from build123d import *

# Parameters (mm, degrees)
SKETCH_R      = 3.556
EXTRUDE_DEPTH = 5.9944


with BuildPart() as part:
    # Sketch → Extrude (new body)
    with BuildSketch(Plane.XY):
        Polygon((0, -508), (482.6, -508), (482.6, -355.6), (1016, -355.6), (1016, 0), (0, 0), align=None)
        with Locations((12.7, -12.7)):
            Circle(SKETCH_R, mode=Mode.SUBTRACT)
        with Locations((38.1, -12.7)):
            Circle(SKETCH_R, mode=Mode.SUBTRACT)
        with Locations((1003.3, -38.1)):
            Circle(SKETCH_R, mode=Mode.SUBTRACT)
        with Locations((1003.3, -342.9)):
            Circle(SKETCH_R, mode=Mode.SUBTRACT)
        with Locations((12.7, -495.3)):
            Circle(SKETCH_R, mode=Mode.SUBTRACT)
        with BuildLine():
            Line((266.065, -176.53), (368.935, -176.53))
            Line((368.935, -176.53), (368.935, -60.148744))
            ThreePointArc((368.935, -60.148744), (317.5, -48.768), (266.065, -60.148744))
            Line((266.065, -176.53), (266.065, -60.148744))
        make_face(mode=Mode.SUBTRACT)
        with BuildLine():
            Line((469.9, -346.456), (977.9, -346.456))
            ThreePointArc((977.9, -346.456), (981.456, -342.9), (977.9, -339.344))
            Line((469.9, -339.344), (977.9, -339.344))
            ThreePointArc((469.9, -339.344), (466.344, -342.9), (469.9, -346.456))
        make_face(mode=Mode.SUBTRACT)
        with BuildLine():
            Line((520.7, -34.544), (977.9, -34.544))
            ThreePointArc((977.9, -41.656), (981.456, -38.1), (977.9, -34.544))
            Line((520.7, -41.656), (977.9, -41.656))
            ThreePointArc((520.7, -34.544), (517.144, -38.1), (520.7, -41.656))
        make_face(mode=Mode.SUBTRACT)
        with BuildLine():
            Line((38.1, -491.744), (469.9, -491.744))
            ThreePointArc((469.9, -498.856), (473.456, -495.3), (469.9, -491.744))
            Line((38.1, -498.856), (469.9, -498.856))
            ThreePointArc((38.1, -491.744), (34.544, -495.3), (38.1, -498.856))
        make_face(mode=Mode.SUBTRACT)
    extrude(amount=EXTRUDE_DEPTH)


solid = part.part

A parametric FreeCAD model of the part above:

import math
import FreeCAD as App
import Part
import Sketcher

V = App.Vector
Q = App.Units.Quantity

doc = App.newDocument("Part")
body = doc.addObject("PartDesign::Body", "Body")

sketch1 = body.newObject("Sketcher::SketchObject", "Sketch")
sketch1.AttachmentSupport = (doc.getObject("XY_Plane"), [""])
sketch1.MapMode = "FlatFace"
sketch1.addGeometry([
    Part.LineSegment(V(0, -508, 0), V(482.6, -508, 0)),
    Part.LineSegment(V(482.6, -508, 0), V(482.6, -355.6, 0)),
    Part.LineSegment(V(482.6, -355.6, 0), V(1016, -355.6, 0)),
    Part.LineSegment(V(1016, -355.6, 0), V(1016, 0, 0)),
    Part.LineSegment(V(1016, 0, 0), V(0, 0, 0)),
    Part.LineSegment(V(0, 0, 0), V(0, -508, 0)),
    Part.Circle(V(12.7, -495.3, 0), V(0, 0, 1), 3.6),
    Part.ArcOfCircle(Part.Circle(V(38.1, -495.3, 0), V(0, 0, 1), 3.6), math.radians(90), math.radians(270)),
    Part.LineSegment(V(38.1, -491.7, 0), V(469.9, -491.7, 0)),
    Part.ArcOfCircle(Part.Circle(V(469.9, -495.3, 0), V(0, 0, 1), 3.6), math.radians(-90), math.radians(90)),
    Part.LineSegment(V(469.9, -498.9, 0), V(38.1, -498.9, 0)),
    Part.LineSegment(V(977.9, -346.5, 0), V(469.9, -346.5, 0)),
    Part.ArcOfCircle(Part.Circle(V(469.9, -342.9, 0), V(0, 0, 1), 3.6), math.radians(90), math.radians(270)),
    Part.LineSegment(V(469.9, -339.3, 0), V(977.9, -339.3, 0)),
    Part.ArcOfCircle(Part.Circle(V(977.9, -342.9, 0), V(0, 0, 1), 3.6), math.radians(-90), math.radians(90)),
    Part.Circle(V(1003.3, -342.9, 0), V(0, 0, 1), 3.6),
    Part.Circle(V(12.7, -12.7, 0), V(0, 0, 1), 3.6),
    Part.Circle(V(38.1, -12.7, 0), V(0, 0, 1), 3.6),
    Part.LineSegment(V(368.9, -176.5, 0), V(266.1, -176.5, 0)),
    Part.LineSegment(V(266.1, -176.5, 0), V(266.1, -60.1, 0)),
    Part.ArcOfCircle(Part.Circle(V(317.5, -170.7, 0), V(0, 0, 1), 121.9), math.radians(65), math.radians(115)),
    Part.LineSegment(V(368.9, -60.1, 0), V(368.9, -176.5, 0)),
    Part.ArcOfCircle(Part.Circle(V(520.7, -38.1, 0), V(0, 0, 1), 3.6), math.radians(90), math.radians(270)),
    Part.LineSegment(V(520.7, -34.5, 0), V(977.9, -34.5, 0)),
    Part.ArcOfCircle(Part.Circle(V(977.9, -38.1, 0), V(0, 0, 1), 3.6), math.radians(-90), math.radians(90)),
    Part.LineSegment(V(977.9, -41.7, 0), V(520.7, -41.7, 0)),
    Part.Circle(V(1003.3, -38.1, 0), V(0, 0, 1), 3.6),
], False)
sketch1.addConstraint([
    Sketcher.Constraint("Coincident", 0, 2, 1, 1),
    Sketcher.Constraint("Coincident", 1, 2, 2, 1),
    Sketcher.Constraint("Coincident", 2, 2, 3, 1),
    Sketcher.Constraint("Coincident", 3, 2, 4, 1),
    Sketcher.Constraint("Coincident", 4, 2, 5, 1),
    Sketcher.Constraint("Coincident", 5, 2, 0, 1),
    Sketcher.Constraint("Tangent", 7, 1, 8, 1),
    Sketcher.Constraint("Tangent", 8, 2, 9, 2),
    Sketcher.Constraint("Tangent", 9, 1, 10, 1),
    Sketcher.Constraint("Tangent", 10, 2, 7, 2),
    Sketcher.Constraint("Tangent", 11, 2, 12, 2),
    Sketcher.Constraint("Tangent", 12, 1, 13, 1),
    Sketcher.Constraint("Tangent", 13, 2, 14, 2),
    Sketcher.Constraint("Tangent", 14, 1, 11, 1),
    Sketcher.Constraint("Coincident", 18, 2, 19, 1),
    Sketcher.Constraint("Coincident", 19, 2, 20, 2),
    Sketcher.Constraint("Coincident", 20, 1, 21, 1),
    Sketcher.Constraint("Coincident", 21, 2, 18, 1),
    Sketcher.Constraint("Tangent", 22, 1, 23, 1),
    Sketcher.Constraint("Tangent", 23, 2, 24, 2),
    Sketcher.Constraint("Tangent", 24, 1, 25, 1),
    Sketcher.Constraint("Tangent", 25, 2, 22, 2),
    Sketcher.Constraint("Horizontal", 0),
    Sketcher.Constraint("Vertical", 1),
    Sketcher.Constraint("Horizontal", 2),
    Sketcher.Constraint("Vertical", 3),
    Sketcher.Constraint("Horizontal", 4),
    Sketcher.Constraint("Vertical", 5),
    Sketcher.Constraint("Horizontal", 8),
    Sketcher.Constraint("Horizontal", 10),
    Sketcher.Constraint("Horizontal", 11),
    Sketcher.Constraint("Horizontal", 13),
    Sketcher.Constraint("Horizontal", 18),
    Sketcher.Constraint("Vertical", 19),
    Sketcher.Constraint("Vertical", 21),
    Sketcher.Constraint("Horizontal", 23),
    Sketcher.Constraint("Horizontal", 25),
    Sketcher.Constraint("Coincident", 4, 2, -1, 1),
    Sketcher.Constraint("Equal", 6, 7),
    Sketcher.Constraint("Equal", 9, 12),
    Sketcher.Constraint("Equal", 14, 15),
    Sketcher.Constraint("Equal", 15, 16),
    Sketcher.Constraint("Equal", 16, 17),
    Sketcher.Constraint("Equal", 17, 22),
    Sketcher.Constraint("Equal", 24, 26),
    Sketcher.Constraint("Horizontal", 6, 3, 7, 3),
    Sketcher.Constraint("Horizontal", 14, 3, 15, 3),
    Sketcher.Constraint("Horizontal", 16, 3, 17, 3),
    Sketcher.Constraint("Horizontal", 24, 3, 26, 3),
    Sketcher.Constraint("Horizontal", 19, 2, 20, 1),
    Sketcher.Constraint("Vertical", 9, 3, 12, 3),
    Sketcher.Constraint("Vertical", 6, 3, 16, 3),
    Sketcher.Constraint("Vertical", 7, 3, 17, 3),
    Sketcher.Constraint("Vertical", 14, 3, 24, 3),
    Sketcher.Constraint("Vertical", 15, 3, 26, 3),
    Sketcher.Constraint("Equal", 13, 5),
    Sketcher.Constraint("Radius", 20, Q("4.7999999 in")),
    Sketcher.Constraint("Diameter", 6, Q("0.28 in")),
    Sketcher.Constraint("DistanceX", 0, 1, 0, 2, Q("19 in")),
    Sketcher.Constraint("DistanceX", 2, 1, 2, 2, Q("21 in")),
    Sketcher.Constraint("DistanceX", 8, 1, 8, 2, Q("17 in")),
    Sketcher.Constraint("DistanceX", 11, 2, 11, 1, Q("20 in")),
    Sketcher.Constraint("DistanceX", 23, 1, 23, 2, Q("18 in")),
    Sketcher.Constraint("DistanceY", 1, 1, 1, 2, Q("6 in")),
    Sketcher.Constraint("DistanceX", 6, 3, 7, 3, Q("1 in")),
    Sketcher.Constraint("DistanceY", 9, 3, 12, 3, Q("6 in")),
    Sketcher.Constraint("DistanceX", 14, 3, 15, 3, Q("1 in")),
    Sketcher.Constraint("DistanceY", 6, 3, 16, 3, Q("19 in")),
    Sketcher.Constraint("DistanceX", 20, 3, 12, 3, Q("6 in")),
    Sketcher.Constraint("DistanceY", 12, 3, 22, 3, Q("12 in")),
    Sketcher.Constraint("DistanceX", 18, 2, 18, 1, Q("4.05 in")),
    Sketcher.Constraint("DistanceX", -1, 1, 6, 3, Q("0.5 in")),
    Sketcher.Constraint("DistanceY", 6, 3, -1, 1, Q("19.5 in")),
    Sketcher.Constraint("DistanceY", 20, 3, -1, 1, Q("6.7199999 in")),
    Sketcher.Constraint("DistanceY", 18, 2, -1, 1, Q("6.95 in")),
])
pad1 = body.newObject("PartDesign::Pad", "Pad")
pad1.Profile = sketch1
pad1.Length = Q("0.236 in")

doc.recompute()
